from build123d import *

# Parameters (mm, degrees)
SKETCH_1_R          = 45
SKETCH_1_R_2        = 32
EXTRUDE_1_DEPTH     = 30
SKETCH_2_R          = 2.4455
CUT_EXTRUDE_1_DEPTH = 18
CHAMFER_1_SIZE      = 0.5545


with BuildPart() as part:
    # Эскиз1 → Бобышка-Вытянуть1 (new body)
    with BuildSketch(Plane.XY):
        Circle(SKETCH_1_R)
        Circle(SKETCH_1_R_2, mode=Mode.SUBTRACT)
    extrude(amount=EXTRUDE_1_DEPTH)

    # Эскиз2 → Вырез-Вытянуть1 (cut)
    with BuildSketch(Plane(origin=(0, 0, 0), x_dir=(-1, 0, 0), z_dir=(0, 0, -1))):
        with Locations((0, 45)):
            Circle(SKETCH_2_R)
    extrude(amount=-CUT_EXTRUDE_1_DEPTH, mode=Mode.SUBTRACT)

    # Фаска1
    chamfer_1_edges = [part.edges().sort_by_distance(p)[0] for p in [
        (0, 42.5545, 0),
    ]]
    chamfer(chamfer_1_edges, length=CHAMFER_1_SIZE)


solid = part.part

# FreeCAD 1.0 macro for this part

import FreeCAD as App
import Part
import Sketcher

V = App.Vector


def edges_at(feature, points):
    """Names of the edges that pass closest to the given points."""
    edges = feature.Shape.Edges
    near = lambda p: min(range(len(edges)), key=lambda i: edges[i].distToShape(Part.Vertex(*p))[0])
    return sorted({f"Edge{near(p) + 1}" for p in points})

doc = App.newDocument("Part")
body = doc.addObject("PartDesign::Body", "Body")

sketch1 = body.newObject("Sketcher::SketchObject", "Sketch")
sketch1.AttachmentSupport = (doc.getObject("XY_Plane"), [""])
sketch1.MapMode = "FlatFace"
sketch1.addGeometry([
    Part.Circle(V(0, 0, 0), V(0, 0, 1), 45),
    Part.Circle(V(0, 0, 0), V(0, 0, 1), 32),
], False)
sketch1.addConstraint([
    Sketcher.Constraint("Coincident", 0, 3, -1, 1),
    Sketcher.Constraint("Coincident", 1, 3, -1, 1),
    Sketcher.Constraint("Diameter", 0, 90.0),
    Sketcher.Constraint("Diameter", 1, 64.0),
])
pad1 = body.newObject("PartDesign::Pad", "Pad")
pad1.Profile = sketch1
pad1.Length = 30

sketch2 = body.newObject("Sketcher::SketchObject", "Sketch001")
sketch2.AttachmentSupport = (doc.getObject("XY_Plane"), [""])
sketch2.MapMode = "FlatFace"
sketch2.addGeometry(Part.Circle(V(0, 45, 0), V(0, 0, 1), 2.4), False)
sketch2.addConstraint([
    Sketcher.Constraint("PointOnObject", 0, 3, -2),
    Sketcher.Constraint("Diameter", 0, 4.891),
    Sketcher.Constraint("DistanceY", -1, 1, 0, 3, 45.0),
])
pocket1 = body.newObject("PartDesign::Pocket", "Pocket")
pocket1.Profile = sketch2
pocket1.Length = 18
pocket1.Reversed = True
doc.recompute()

chamfer = body.newObject("PartDesign::Chamfer", "Chamfer")
chamfer.Base = (pocket1, edges_at(pocket1, [(0, 42.554, 0)]))
chamfer.Size = 0.5545

doc.recompute()
